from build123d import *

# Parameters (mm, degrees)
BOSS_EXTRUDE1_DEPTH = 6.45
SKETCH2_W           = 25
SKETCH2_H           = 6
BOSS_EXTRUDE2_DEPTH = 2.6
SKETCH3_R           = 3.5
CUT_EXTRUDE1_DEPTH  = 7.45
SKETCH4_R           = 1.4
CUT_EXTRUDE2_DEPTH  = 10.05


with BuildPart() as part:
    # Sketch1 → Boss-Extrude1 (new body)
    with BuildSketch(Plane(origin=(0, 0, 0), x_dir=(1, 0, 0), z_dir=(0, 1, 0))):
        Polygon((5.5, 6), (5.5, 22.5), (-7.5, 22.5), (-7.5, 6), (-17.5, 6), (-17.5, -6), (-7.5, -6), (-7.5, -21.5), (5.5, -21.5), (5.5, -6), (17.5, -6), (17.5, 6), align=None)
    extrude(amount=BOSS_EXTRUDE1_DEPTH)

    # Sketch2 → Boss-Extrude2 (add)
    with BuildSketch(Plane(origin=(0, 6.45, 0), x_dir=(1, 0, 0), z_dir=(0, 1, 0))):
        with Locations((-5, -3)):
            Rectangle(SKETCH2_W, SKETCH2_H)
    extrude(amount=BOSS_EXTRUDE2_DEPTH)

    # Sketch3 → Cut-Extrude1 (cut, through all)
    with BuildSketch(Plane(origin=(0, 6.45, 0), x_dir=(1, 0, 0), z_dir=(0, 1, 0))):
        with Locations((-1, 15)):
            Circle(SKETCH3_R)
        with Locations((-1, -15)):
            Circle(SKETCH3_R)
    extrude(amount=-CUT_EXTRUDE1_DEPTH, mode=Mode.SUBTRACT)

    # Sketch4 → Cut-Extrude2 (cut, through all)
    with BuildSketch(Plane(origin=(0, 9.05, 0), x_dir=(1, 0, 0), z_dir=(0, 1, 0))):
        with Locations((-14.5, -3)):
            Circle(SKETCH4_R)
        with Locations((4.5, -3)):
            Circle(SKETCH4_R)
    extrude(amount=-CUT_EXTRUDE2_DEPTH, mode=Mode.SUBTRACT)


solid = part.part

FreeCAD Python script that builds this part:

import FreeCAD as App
import Part
import Sketcher
from FreeCAD import Vector


def add_polygon(sketch, points):
    """Adds a closed chain of lines whose ends are joined by coincident constraints."""
    first, n = sketch.GeometryCount, len(points)
    for a, b in zip(points, points[1:] + points[:1]):
        sketch.addGeometry(Part.LineSegment(App.Vector(*a, 0), App.Vector(*b, 0)), False)
    for i in range(n):
        sketch.addConstraint(Sketcher.Constraint("Coincident", first + i, 2, first + (i + 1) % n, 1))

doc = App.newDocument("Part")
params = doc.addObject("Spreadsheet::Sheet", "Params")
for row, (alias, value) in enumerate([
    ("sketch1_width", "13 mm"),
    ("sketch1_width2", "10 mm"),
    ("sketch1_width3", "12 mm"),
    ("sketch1_height", "16.5 mm"),
    ("sketch1_height2", "15.5 mm"),
    ("pad1_length", "6.45 mm"),
    ("sketch2_width", "25 mm"),
    ("sketch2_height", "6 mm"),
    ("pad2_length", "2.6 mm"),
    ("sketch3_diameter", "7 mm"),
    ("sketch4_diameter", "2.8 mm"),
], start=1):
    params.set(f"A{row}", alias)
    params.set(f"B{row}", "=" + value)
    params.setAlias(f"B{row}", alias)

body = doc.addObject("PartDesign::Body", "Body")

# Sketch on XZ plane
sketch1 = body.newObject("Sketcher::SketchObject", "Sketch")
sketch1.AttachmentSupport = (doc.getObject("XZ_Plane"), [""])
sketch1.MapMode = "FlatFace"
add_polygon(sketch1, [(6, -6), (6, -22), (-8, -22), (-8, -6), (-18, -6), (-18, 6), (-8, 6), (-8, 22), (6, 22), (6, 6), (18, 6), (18, -6)])  # lines 0-11
sketch1.addConstraint(Sketcher.Constraint("Vertical", 0))
sketch1.addConstraint(Sketcher.Constraint("Horizontal", 1))
sketch1.addConstraint(Sketcher.Constraint("Vertical", 2))
sketch1.addConstraint(Sketcher.Constraint("Horizontal", 3))
sketch1.addConstraint(Sketcher.Constraint("Vertical", 4))
sketch1.addConstraint(Sketcher.Constraint("Horizontal", 5))
sketch1.addConstraint(Sketcher.Constraint("Vertical", 6))
sketch1.addConstraint(Sketcher.Constraint("Horizontal", 7))
sketch1.addConstraint(Sketcher.Constraint("Vertical", 8))
sketch1.addConstraint(Sketcher.Constraint("Horizontal", 9))
sketch1.addConstraint(Sketcher.Constraint("Vertical", 10))
sketch1.addConstraint(Sketcher.Constraint("Horizontal", 11))
sketch1.addConstraint(Sketcher.Constraint("Symmetric", 3, 2, 9, 2, -1, 1))
sketch1.addConstraint(Sketcher.Constraint("Symmetric", 2, 2, 5, 2, -1))
sketch1.addConstraint(Sketcher.Constraint("Symmetric", 8, 2, 11, 2, -1))
sketch1.addConstraint(Sketcher.Constraint("Equal", 11, 4))
sketch1.addConstraint(Sketcher.Constraint("DistanceX", 1, 2, 1, 1, 13.0))
sketch1.addConstraint(Sketcher.Constraint("DistanceX", 3, 2, 3, 1, 10.0))
sketch1.addConstraint(Sketcher.Constraint("DistanceX", 9, 1, 9, 2, 12.0))
sketch1.addConstraint(Sketcher.Constraint("DistanceY", 0, 2, 0, 1, 16.5))
sketch1.addConstraint(Sketcher.Constraint("DistanceY", 6, 1, 6, 2, 15.5))
sketch1.setExpression("Constraints[28]", "Params.sketch1_width")
sketch1.setExpression("Constraints[29]", "Params.sketch1_width2")
sketch1.setExpression("Constraints[30]", "Params.sketch1_width3")
sketch1.setExpression("Constraints[31]", "Params.sketch1_height")
sketch1.setExpression("Constraints[32]", "Params.sketch1_height2")
pad1 = body.newObject("PartDesign::Pad", "Pad")
pad1.Profile = sketch1
pad1.setExpression("Length", "Params.pad1_length")
pad1.Reversed = True

# Sketch on XZ plane
sketch2 = body.newObject("Sketcher::SketchObject", "Sketch001")
sketch2.AttachmentSupport = (doc.getObject("XZ_Plane"), [""])
sketch2.MapMode = "FlatFace"
sketch2.AttachmentOffset = App.Placement(Vector(0, 0, -6.45), App.Rotation())
add_polygon(sketch2, [(-18, 0), (-18, 6), (8, 6), (8, 0)])  # lines 0-3
sketch2.addConstraint(Sketcher.Constraint("Vertical", 0))
sketch2.addConstraint(Sketcher.Constraint("Horizontal", 1))
sketch2.addConstraint(Sketcher.Constraint("Vertical", 2))
sketch2.addConstraint(Sketcher.Constraint("Horizontal", 3))
sketch2.addConstraint(Sketcher.Constraint("PointOnObject", 2, 2, -1))
sketch2.addConstraint(Sketcher.Constraint("DistanceX", 1, 1, 1, 2, 25.0))
sketch2.addConstraint(Sketcher.Constraint("DistanceY", 0, 1, 0, 2, 6.0))
sketch2.addConstraint(Sketcher.Constraint("DistanceX", 0, 2, -1, 1, 17.5))
sketch2.setExpression("Constraints[9]", "Params.sketch2_width")
sketch2.setExpression("Constraints[10]", "Params.sketch2_height")
pad2 = body.newObject("PartDesign::Pad", "Pad001")
pad2.Profile = sketch2
pad2.setExpression("Length", "Params.pad2_length")
pad2.Reversed = True

# Sketch on XZ plane
sketch3 = body.newObject("Sketcher::SketchObject", "Sketch002")
sketch3.AttachmentSupport = (doc.getObject("XZ_Plane"), [""])
sketch3.MapMode = "FlatFace"
sketch3.AttachmentOffset = App.Placement(Vector(0, 0, -6.45), App.Rotation())
sketch3.addGeometry(Part.Circle(Vector(-1, -15, 0), Vector(0, 0, 1), 3.5), False)
sketch3.addGeometry(Part.Circle(Vector(-1, 15, 0), Vector(0, 0, 1), 3.5), False)
sketch3.addConstraint(Sketcher.Constraint("Equal", 0, 1))
sketch3.addConstraint(Sketcher.Constraint("Symmetric", 0, 3, 1, 3, -1))
sketch3.addConstraint(Sketcher.Constraint("Diameter", 0, 7.0))
sketch3.addConstraint(Sketcher.Constraint("DistanceX", 0, 3, -1, 1, 1.0))
sketch3.addConstraint(Sketcher.Constraint("DistanceY", 0, 3, -1, 1, 15.0))
sketch3.setExpression("Constraints[2]", "Params.sketch3_diameter")
pocket1 = body.newObject("PartDesign::Pocket", "Pocket")
pocket1.Profile = sketch3
pocket1.Type = "ThroughAll"
pocket1.Reversed = True

# Sketch on XZ plane
sketch4 = body.newObject("Sketcher::SketchObject", "Sketch003")
sketch4.AttachmentSupport = (doc.getObject("XZ_Plane"), [""])
sketch4.MapMode = "FlatFace"
sketch4.AttachmentOffset = App.Placement(Vector(0, 0, -9.05), App.Rotation())
sketch4.addGeometry(Part.Circle(Vector(-14.5, 3, 0), Vector(0, 0, 1), 1.4), False)
sketch4.addGeometry(Part.Circle(Vector(4.5, 3, 0), Vector(0, 0, 1), 1.4), False)
sketch4.addConstraint(Sketcher.Constraint("Equal", 0, 1))
sketch4.addConstraint(Sketcher.Constraint("Horizontal", 0, 3, 1, 3))
sketch4.addConstraint(Sketcher.Constraint("Diameter", 0, 2.8))
sketch4.addConstraint(Sketcher.Constraint("DistanceY", -1, 1, 0, 3, 3.0))
sketch4.addConstraint(Sketcher.Constraint("DistanceX", 0, 3, 1, 3, 19.0))
sketch4.addConstraint(Sketcher.Constraint("DistanceX", 0, 3, -1, 1, 14.5))
sketch4.setExpression("Constraints[2]", "Params.sketch4_diameter")
pocket2 = body.newObject("PartDesign::Pocket", "Pocket001")
pocket2.Profile = sketch4
pocket2.Type = "ThroughAll"
pocket2.Reversed = True

doc.recompute()
